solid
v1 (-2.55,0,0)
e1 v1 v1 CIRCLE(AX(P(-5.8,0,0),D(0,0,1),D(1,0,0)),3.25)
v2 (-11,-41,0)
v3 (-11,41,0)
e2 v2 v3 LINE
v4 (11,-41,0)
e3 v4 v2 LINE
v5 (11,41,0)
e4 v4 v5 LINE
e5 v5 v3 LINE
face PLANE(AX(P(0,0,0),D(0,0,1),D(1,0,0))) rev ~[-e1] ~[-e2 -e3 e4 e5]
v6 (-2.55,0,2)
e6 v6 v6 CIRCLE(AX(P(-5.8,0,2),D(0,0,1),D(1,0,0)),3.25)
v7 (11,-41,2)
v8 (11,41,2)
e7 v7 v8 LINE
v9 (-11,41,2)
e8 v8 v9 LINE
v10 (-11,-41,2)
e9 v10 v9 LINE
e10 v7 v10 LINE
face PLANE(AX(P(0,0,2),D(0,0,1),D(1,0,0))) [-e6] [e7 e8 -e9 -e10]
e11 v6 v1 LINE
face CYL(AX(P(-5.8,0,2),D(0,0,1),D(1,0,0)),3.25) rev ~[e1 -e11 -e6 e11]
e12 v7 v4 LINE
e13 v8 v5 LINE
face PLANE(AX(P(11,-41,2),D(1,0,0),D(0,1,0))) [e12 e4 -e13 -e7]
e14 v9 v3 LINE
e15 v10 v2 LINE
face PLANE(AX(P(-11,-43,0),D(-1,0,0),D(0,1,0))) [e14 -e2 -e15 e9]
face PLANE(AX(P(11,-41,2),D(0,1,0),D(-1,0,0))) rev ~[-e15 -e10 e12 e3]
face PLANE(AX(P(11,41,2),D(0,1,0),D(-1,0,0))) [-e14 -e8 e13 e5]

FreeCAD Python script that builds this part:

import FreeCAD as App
import Part
import Sketcher

V = App.Vector

doc = App.newDocument("Part")
params = doc.addObject("Spreadsheet::Sheet", "Params")
for row, (alias, value) in enumerate([
    ("sketch1_width", "24 mm"),
    ("sketch1_height", "86 mm"),
    ("pad1_length", "2 mm"),
    ("sketch2_diameter", "6.5 mm"),
    ("pocket1_length", "2 mm"),
    ("sketch3_height", "2 mm"),
    ("sketch3_width", "24 mm"),
    ("sketch3_height2", "82 mm"),
    ("pocket2_length", "2 mm"),
], start=1):
    params.set(f"A{row}", alias)
    params.set(f"B{row}", "=" + value)
    params.setAlias(f"B{row}", alias)

body = doc.addObject("PartDesign::Body", "Body")

sketch1 = doc.addObject("Sketcher::SketchObject", "Sketch")
body.addObject(sketch1)
sketch1.AttachmentSupport = (doc.XY_Plane, [""])
sketch1.MapMode = "FlatFace"
sketch1.addGeometry(Part.LineSegment(V(13, 43, 0), V(-11, 43, 0)), False)
sketch1.addGeometry(Part.LineSegment(V(-11, 43, 0), V(-11, -43, 0)), False)
sketch1.addGeometry(Part.LineSegment(V(-11, -43, 0), V(13, -43, 0)), False)
sketch1.addGeometry(Part.LineSegment(V(13, -43, 0), V(13, 43, 0)), False)
sketch1.addConstraint(Sketcher.Constraint("Coincident", 0, 2, 1, 1))
sketch1.addConstraint(Sketcher.Constraint("Coincident", 1, 2, 2, 1))
sketch1.addConstraint(Sketcher.Constraint("Coincident", 2, 2, 3, 1))
sketch1.addConstraint(Sketcher.Constraint("Coincident", 3, 2, 0, 1))
sketch1.addConstraint(Sketcher.Constraint("Horizontal", 0))
sketch1.addConstraint(Sketcher.Constraint("Vertical", 1))
sketch1.addConstraint(Sketcher.Constraint("Horizontal", 2))
sketch1.addConstraint(Sketcher.Constraint("Vertical", 3))
sketch1.addConstraint(Sketcher.Constraint("DistanceX", 0, 2, 0, 1, 24.0))
sketch1.addConstraint(Sketcher.Constraint("DistanceY", 1, 2, 1, 1, 86.0))
sketch1.addConstraint(Sketcher.Constraint("DistanceX", 0, 2, -1, 1, 11.0))
sketch1.addConstraint(Sketcher.Constraint("DistanceY", -1, 1, 0, 2, 43.0))
sketch1.setExpression("Constraints[8]", "Params.sketch1_width")
sketch1.setExpression("Constraints[9]", "Params.sketch1_height")
pad1 = doc.addObject("PartDesign::Pad", "Pad")
body.addObject(pad1)
pad1.Profile = sketch1
pad1.setExpression("Length", "Params.pad1_length")

sketch2 = doc.addObject("Sketcher::SketchObject", "Sketch001")
body.addObject(sketch2)
sketch2.AttachmentSupport = (doc.XY_Plane, [""])
sketch2.MapMode = "FlatFace"
sketch2.AttachmentOffset = App.Placement(V(0, 0, 2), App.Rotation())
sketch2.addGeometry(Part.Circle(V(-5.8, 0, 0), V(0, 0, 1), 3.2), False)
sketch2.addConstraint(Sketcher.Constraint("PointOnObject", 0, 3, -1))
sketch2.addConstraint(Sketcher.Constraint("Diameter", 0, 6.5))
sketch2.addConstraint(Sketcher.Constraint("DistanceX", 0, 3, -1, 1, 5.8))
sketch2.setExpression("Constraints[1]", "Params.sketch2_diameter")
pocket1 = doc.addObject("PartDesign::Pocket", "Pocket")
body.addObject(pocket1)
pocket1.Profile = sketch2
pocket1.setExpression("Length", "Params.pocket1_length")

sketch3 = doc.addObject("Sketcher::SketchObject", "Sketch002")
body.addObject(sketch3)
sketch3.AttachmentSupport = (doc.XY_Plane, [""])
sketch3.MapMode = "FlatFace"
sketch3.AttachmentOffset = App.Placement(V(0, 0, 2), App.Rotation())
sketch3.addGeometry(Part.LineSegment(V(13, 43, 0), V(-11, 43, 0)), False)
sketch3.addGeometry(Part.LineSegment(V(-11, 43, 0), V(-11, 41, 0)), False)
sketch3.addGeometry(Part.LineSegment(V(-11, 41, 0), V(11, 41, 0)), False)
sketch3.addGeometry(Part.LineSegment(V(11, 41, 0), V(11, -41, 0)), False)
sketch3.addGeometry(Part.LineSegment(V(11, -41, 0), V(-11, -41, 0)), False)
sketch3.addGeometry(Part.LineSegment(V(-11, -41, 0), V(-11, -43, 0)), False)
sketch3.addGeometry(Part.LineSegment(V(-11, -43, 0), V(13, -43, 0)), False)
sketch3.addGeometry(Part.LineSegment(V(13, -43, 0), V(13, 43, 0)), False)
sketch3.addConstraint(Sketcher.Constraint("Coincident", 0, 2, 1, 1))
sketch3.addConstraint(Sketcher.Constraint("Coincident", 1, 2, 2, 1))
sketch3.addConstraint(Sketcher.Constraint("Coincident", 2, 2, 3, 1))
sketch3.addConstraint(Sketcher.Constraint("Coincident", 3, 2, 4, 1))
sketch3.addConstraint(Sketcher.Constraint("Coincident", 4, 2, 5, 1))
sketch3.addConstraint(Sketcher.Constraint("Coincident", 5, 2, 6, 1))
sketch3.addConstraint(Sketcher.Constraint("Coincident", 6, 2, 7, 1))
sketch3.addConstraint(Sketcher.Constraint("Coincident", 7, 2, 0, 1))
sketch3.addConstraint(Sketcher.Constraint("Horizontal", 0))
sketch3.addConstraint(Sketcher.Constraint("Vertical", 1))
sketch3.addConstraint(Sketcher.Constraint("Horizontal", 2))
sketch3.addConstraint(Sketcher.Constraint("Vertical", 3))
sketch3.addConstraint(Sketcher.Constraint("Horizontal", 4))
sketch3.addConstraint(Sketcher.Constraint("Vertical", 5))
sketch3.addConstraint(Sketcher.Constraint("Horizontal", 6))
sketch3.addConstraint(Sketcher.Constraint("Vertical", 7))
sketch3.addConstraint(Sketcher.Constraint("Symmetric", 1, 2, 3, 2, -1, 1))
sketch3.addConstraint(Sketcher.Constraint("Symmetric", 0, 2, 5, 2, -1))
sketch3.addConstraint(Sketcher.Constraint("DistanceY", 1, 2, 1, 1, 2.0))
sketch3.addConstraint(Sketcher.Constraint("DistanceX", 3, 2, 6, 2, 2.0))
sketch3.addConstraint(Sketcher.Constraint("DistanceX", 0, 2, 0, 1, 24.0))
sketch3.addConstraint(Sketcher.Constraint("DistanceY", 3, 2, 3, 1, 82.0))
sketch3.setExpression("Constraints[18]", "Params.sketch3_height")
sketch3.setExpression("Constraints[20]", "Params.sketch3_width")
sketch3.setExpression("Constraints[21]", "Params.sketch3_height2")
pocket2 = doc.addObject("PartDesign::Pocket", "Pocket001")
body.addObject(pocket2)
pocket2.Profile = sketch3
pocket2.setExpression("Length", "Params.pocket2_length")

doc.recompute()
